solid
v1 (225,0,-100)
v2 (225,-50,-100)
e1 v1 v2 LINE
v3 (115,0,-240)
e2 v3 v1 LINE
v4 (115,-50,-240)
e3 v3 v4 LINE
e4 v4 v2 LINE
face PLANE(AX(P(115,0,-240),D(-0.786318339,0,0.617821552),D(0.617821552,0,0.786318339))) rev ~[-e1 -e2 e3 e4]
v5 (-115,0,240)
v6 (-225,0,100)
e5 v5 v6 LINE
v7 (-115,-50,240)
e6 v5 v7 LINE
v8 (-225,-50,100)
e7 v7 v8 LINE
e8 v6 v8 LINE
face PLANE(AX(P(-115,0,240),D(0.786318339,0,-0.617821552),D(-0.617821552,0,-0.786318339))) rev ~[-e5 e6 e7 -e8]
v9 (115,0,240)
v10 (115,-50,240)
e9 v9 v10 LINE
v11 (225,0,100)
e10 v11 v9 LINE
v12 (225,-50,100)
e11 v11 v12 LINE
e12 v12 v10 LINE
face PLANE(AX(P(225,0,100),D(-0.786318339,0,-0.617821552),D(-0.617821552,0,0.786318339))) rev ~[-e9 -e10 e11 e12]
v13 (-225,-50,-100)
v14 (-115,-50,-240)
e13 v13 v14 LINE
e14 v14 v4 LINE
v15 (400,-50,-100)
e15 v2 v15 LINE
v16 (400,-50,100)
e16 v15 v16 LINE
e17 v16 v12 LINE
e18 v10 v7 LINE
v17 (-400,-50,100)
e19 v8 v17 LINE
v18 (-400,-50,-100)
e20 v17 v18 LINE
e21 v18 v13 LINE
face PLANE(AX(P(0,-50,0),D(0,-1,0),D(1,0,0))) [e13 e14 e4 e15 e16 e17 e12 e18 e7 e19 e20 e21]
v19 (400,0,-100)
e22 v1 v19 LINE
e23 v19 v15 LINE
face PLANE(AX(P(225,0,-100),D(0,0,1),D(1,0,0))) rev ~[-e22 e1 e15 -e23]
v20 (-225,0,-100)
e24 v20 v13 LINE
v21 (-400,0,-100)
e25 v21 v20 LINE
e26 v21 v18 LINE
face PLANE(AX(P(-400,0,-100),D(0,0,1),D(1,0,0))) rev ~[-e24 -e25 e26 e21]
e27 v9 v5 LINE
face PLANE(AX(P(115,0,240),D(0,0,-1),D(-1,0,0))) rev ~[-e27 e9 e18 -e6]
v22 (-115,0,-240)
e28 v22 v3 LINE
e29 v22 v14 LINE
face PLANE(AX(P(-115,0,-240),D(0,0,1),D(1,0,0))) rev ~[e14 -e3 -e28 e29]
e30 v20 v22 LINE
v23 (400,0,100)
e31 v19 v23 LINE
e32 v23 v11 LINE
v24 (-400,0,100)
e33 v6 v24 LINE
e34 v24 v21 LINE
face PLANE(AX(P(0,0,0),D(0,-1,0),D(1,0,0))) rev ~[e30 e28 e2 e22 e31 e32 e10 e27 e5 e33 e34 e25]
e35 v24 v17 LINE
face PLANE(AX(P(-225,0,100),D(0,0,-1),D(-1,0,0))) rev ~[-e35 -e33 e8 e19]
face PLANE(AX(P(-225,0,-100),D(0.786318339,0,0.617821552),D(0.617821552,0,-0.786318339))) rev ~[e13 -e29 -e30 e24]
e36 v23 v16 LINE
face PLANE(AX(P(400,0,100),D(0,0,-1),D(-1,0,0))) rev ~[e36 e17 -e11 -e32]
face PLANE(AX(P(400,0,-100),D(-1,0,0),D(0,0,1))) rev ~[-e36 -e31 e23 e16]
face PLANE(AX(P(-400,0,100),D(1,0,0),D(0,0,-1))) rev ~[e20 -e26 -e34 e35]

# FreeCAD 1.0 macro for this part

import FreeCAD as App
import Part
import Sketcher
from FreeCAD import Vector

doc = App.newDocument("Part")
body = doc.addObject("PartDesign::Body", "Body")

sketch1 = body.newObject("Sketcher::SketchObject", "Sketch")
sketch1.AttachmentSupport = (doc.getObject("XZ_Plane"), [""])
sketch1.MapMode = "FlatFace"
sketch1.addGeometry(Part.LineSegment(Vector(-400, 100, 0), Vector(-400, -100, 0)), False)
sketch1.addGeometry(Part.LineSegment(Vector(-400, -100, 0), Vector(-225, -100, 0)), False)
sketch1.addGeometry(Part.LineSegment(Vector(-225, -100, 0), Vector(-115, -240, 0)), False)
sketch1.addGeometry(Part.LineSegment(Vector(-115, -240, 0), Vector(115, -240, 0)), False)
sketch1.addGeometry(Part.LineSegment(Vector(115, -240, 0), Vector(225, -100, 0)), False)
sketch1.addGeometry(Part.LineSegment(Vector(225, -100, 0), Vector(400, -100, 0)), False)
sketch1.addGeometry(Part.LineSegment(Vector(400, -100, 0), Vector(400, 100, 0)), False)
sketch1.addGeometry(Part.LineSegment(Vector(400, 100, 0), Vector(225, 100, 0)), False)
sketch1.addGeometry(Part.LineSegment(Vector(225, 100, 0), Vector(115, 240, 0)), False)
sketch1.addGeometry(Part.LineSegment(Vector(115, 240, 0), Vector(-115, 240, 0)), False)
sketch1.addGeometry(Part.LineSegment(Vector(-115, 240, 0), Vector(-225, 100, 0)), False)
sketch1.addGeometry(Part.LineSegment(Vector(-225, 100, 0), Vector(-400, 100, 0)), False)
sketch1.addConstraint(Sketcher.Constraint("Coincident", 0, 2, 1, 1))
sketch1.addConstraint(Sketcher.Constraint("Coincident", 1, 2, 2, 1))
sketch1.addConstraint(Sketcher.Constraint("Coincident", 2, 2, 3, 1))
sketch1.addConstraint(Sketcher.Constraint("Coincident", 3, 2, 4, 1))
sketch1.addConstraint(Sketcher.Constraint("Coincident", 4, 2, 5, 1))
sketch1.addConstraint(Sketcher.Constraint("Coincident", 5, 2, 6, 1))
sketch1.addConstraint(Sketcher.Constraint("Coincident", 6, 2, 7, 1))
sketch1.addConstraint(Sketcher.Constraint("Coincident", 7, 2, 8, 1))
sketch1.addConstraint(Sketcher.Constraint("Coincident", 8, 2, 9, 1))
sketch1.addConstraint(Sketcher.Constraint("Coincident", 9, 2, 10, 1))
sketch1.addConstraint(Sketcher.Constraint("Coincident", 10, 2, 11, 1))
sketch1.addConstraint(Sketcher.Constraint("Coincident", 11, 2, 0, 1))
sketch1.addConstraint(Sketcher.Constraint("Vertical", 0))
sketch1.addConstraint(Sketcher.Constraint("Horizontal", 1))
sketch1.addConstraint(Sketcher.Constraint("Horizontal", 3))
sketch1.addConstraint(Sketcher.Constraint("Horizontal", 5))
sketch1.addConstraint(Sketcher.Constraint("Vertical", 6))
sketch1.addConstraint(Sketcher.Constraint("Horizontal", 7))
sketch1.addConstraint(Sketcher.Constraint("Horizontal", 9))
sketch1.addConstraint(Sketcher.Constraint("Horizontal", 11))
sketch1.addConstraint(Sketcher.Constraint("Symmetric", 0, 2, 6, 2, -1, 1))
sketch1.addConstraint(Sketcher.Constraint("Symmetric", 2, 2, 8, 2, -1, 1))
sketch1.addConstraint(Sketcher.Constraint("Symmetric", 4, 2, 10, 2, -1, 1))
sketch1.addConstraint(Sketcher.Constraint("Symmetric", 1, 2, 4, 2, -2))
sketch1.addConstraint(Sketcher.Constraint("Parallel", 2, 8))
sketch1.addConstraint(Sketcher.Constraint("Parallel", 4, 10))
sketch1.addConstraint(Sketcher.Constraint("Vertical", 3, 2, 8, 2))
sketch1.addConstraint(Sketcher.Constraint("DistanceX", 1, 1, 1, 2, 175.0))
sketch1.addConstraint(Sketcher.Constraint("DistanceX", 3, 1, 3, 2, 230.0))
sketch1.addConstraint(Sketcher.Constraint("DistanceY", 0, 2, 0, 1, 200.0))
sketch1.addConstraint(Sketcher.Constraint("DistanceX", 0, 2, -1, 1, 400.0))
sketch1.addConstraint(Sketcher.Constraint("DistanceY", 2, 2, -1, 1, 240.0))
pad1 = body.newObject("PartDesign::Pad", "Pad")
pad1.Profile = sketch1
pad1.Length = 50

doc.recompute()
